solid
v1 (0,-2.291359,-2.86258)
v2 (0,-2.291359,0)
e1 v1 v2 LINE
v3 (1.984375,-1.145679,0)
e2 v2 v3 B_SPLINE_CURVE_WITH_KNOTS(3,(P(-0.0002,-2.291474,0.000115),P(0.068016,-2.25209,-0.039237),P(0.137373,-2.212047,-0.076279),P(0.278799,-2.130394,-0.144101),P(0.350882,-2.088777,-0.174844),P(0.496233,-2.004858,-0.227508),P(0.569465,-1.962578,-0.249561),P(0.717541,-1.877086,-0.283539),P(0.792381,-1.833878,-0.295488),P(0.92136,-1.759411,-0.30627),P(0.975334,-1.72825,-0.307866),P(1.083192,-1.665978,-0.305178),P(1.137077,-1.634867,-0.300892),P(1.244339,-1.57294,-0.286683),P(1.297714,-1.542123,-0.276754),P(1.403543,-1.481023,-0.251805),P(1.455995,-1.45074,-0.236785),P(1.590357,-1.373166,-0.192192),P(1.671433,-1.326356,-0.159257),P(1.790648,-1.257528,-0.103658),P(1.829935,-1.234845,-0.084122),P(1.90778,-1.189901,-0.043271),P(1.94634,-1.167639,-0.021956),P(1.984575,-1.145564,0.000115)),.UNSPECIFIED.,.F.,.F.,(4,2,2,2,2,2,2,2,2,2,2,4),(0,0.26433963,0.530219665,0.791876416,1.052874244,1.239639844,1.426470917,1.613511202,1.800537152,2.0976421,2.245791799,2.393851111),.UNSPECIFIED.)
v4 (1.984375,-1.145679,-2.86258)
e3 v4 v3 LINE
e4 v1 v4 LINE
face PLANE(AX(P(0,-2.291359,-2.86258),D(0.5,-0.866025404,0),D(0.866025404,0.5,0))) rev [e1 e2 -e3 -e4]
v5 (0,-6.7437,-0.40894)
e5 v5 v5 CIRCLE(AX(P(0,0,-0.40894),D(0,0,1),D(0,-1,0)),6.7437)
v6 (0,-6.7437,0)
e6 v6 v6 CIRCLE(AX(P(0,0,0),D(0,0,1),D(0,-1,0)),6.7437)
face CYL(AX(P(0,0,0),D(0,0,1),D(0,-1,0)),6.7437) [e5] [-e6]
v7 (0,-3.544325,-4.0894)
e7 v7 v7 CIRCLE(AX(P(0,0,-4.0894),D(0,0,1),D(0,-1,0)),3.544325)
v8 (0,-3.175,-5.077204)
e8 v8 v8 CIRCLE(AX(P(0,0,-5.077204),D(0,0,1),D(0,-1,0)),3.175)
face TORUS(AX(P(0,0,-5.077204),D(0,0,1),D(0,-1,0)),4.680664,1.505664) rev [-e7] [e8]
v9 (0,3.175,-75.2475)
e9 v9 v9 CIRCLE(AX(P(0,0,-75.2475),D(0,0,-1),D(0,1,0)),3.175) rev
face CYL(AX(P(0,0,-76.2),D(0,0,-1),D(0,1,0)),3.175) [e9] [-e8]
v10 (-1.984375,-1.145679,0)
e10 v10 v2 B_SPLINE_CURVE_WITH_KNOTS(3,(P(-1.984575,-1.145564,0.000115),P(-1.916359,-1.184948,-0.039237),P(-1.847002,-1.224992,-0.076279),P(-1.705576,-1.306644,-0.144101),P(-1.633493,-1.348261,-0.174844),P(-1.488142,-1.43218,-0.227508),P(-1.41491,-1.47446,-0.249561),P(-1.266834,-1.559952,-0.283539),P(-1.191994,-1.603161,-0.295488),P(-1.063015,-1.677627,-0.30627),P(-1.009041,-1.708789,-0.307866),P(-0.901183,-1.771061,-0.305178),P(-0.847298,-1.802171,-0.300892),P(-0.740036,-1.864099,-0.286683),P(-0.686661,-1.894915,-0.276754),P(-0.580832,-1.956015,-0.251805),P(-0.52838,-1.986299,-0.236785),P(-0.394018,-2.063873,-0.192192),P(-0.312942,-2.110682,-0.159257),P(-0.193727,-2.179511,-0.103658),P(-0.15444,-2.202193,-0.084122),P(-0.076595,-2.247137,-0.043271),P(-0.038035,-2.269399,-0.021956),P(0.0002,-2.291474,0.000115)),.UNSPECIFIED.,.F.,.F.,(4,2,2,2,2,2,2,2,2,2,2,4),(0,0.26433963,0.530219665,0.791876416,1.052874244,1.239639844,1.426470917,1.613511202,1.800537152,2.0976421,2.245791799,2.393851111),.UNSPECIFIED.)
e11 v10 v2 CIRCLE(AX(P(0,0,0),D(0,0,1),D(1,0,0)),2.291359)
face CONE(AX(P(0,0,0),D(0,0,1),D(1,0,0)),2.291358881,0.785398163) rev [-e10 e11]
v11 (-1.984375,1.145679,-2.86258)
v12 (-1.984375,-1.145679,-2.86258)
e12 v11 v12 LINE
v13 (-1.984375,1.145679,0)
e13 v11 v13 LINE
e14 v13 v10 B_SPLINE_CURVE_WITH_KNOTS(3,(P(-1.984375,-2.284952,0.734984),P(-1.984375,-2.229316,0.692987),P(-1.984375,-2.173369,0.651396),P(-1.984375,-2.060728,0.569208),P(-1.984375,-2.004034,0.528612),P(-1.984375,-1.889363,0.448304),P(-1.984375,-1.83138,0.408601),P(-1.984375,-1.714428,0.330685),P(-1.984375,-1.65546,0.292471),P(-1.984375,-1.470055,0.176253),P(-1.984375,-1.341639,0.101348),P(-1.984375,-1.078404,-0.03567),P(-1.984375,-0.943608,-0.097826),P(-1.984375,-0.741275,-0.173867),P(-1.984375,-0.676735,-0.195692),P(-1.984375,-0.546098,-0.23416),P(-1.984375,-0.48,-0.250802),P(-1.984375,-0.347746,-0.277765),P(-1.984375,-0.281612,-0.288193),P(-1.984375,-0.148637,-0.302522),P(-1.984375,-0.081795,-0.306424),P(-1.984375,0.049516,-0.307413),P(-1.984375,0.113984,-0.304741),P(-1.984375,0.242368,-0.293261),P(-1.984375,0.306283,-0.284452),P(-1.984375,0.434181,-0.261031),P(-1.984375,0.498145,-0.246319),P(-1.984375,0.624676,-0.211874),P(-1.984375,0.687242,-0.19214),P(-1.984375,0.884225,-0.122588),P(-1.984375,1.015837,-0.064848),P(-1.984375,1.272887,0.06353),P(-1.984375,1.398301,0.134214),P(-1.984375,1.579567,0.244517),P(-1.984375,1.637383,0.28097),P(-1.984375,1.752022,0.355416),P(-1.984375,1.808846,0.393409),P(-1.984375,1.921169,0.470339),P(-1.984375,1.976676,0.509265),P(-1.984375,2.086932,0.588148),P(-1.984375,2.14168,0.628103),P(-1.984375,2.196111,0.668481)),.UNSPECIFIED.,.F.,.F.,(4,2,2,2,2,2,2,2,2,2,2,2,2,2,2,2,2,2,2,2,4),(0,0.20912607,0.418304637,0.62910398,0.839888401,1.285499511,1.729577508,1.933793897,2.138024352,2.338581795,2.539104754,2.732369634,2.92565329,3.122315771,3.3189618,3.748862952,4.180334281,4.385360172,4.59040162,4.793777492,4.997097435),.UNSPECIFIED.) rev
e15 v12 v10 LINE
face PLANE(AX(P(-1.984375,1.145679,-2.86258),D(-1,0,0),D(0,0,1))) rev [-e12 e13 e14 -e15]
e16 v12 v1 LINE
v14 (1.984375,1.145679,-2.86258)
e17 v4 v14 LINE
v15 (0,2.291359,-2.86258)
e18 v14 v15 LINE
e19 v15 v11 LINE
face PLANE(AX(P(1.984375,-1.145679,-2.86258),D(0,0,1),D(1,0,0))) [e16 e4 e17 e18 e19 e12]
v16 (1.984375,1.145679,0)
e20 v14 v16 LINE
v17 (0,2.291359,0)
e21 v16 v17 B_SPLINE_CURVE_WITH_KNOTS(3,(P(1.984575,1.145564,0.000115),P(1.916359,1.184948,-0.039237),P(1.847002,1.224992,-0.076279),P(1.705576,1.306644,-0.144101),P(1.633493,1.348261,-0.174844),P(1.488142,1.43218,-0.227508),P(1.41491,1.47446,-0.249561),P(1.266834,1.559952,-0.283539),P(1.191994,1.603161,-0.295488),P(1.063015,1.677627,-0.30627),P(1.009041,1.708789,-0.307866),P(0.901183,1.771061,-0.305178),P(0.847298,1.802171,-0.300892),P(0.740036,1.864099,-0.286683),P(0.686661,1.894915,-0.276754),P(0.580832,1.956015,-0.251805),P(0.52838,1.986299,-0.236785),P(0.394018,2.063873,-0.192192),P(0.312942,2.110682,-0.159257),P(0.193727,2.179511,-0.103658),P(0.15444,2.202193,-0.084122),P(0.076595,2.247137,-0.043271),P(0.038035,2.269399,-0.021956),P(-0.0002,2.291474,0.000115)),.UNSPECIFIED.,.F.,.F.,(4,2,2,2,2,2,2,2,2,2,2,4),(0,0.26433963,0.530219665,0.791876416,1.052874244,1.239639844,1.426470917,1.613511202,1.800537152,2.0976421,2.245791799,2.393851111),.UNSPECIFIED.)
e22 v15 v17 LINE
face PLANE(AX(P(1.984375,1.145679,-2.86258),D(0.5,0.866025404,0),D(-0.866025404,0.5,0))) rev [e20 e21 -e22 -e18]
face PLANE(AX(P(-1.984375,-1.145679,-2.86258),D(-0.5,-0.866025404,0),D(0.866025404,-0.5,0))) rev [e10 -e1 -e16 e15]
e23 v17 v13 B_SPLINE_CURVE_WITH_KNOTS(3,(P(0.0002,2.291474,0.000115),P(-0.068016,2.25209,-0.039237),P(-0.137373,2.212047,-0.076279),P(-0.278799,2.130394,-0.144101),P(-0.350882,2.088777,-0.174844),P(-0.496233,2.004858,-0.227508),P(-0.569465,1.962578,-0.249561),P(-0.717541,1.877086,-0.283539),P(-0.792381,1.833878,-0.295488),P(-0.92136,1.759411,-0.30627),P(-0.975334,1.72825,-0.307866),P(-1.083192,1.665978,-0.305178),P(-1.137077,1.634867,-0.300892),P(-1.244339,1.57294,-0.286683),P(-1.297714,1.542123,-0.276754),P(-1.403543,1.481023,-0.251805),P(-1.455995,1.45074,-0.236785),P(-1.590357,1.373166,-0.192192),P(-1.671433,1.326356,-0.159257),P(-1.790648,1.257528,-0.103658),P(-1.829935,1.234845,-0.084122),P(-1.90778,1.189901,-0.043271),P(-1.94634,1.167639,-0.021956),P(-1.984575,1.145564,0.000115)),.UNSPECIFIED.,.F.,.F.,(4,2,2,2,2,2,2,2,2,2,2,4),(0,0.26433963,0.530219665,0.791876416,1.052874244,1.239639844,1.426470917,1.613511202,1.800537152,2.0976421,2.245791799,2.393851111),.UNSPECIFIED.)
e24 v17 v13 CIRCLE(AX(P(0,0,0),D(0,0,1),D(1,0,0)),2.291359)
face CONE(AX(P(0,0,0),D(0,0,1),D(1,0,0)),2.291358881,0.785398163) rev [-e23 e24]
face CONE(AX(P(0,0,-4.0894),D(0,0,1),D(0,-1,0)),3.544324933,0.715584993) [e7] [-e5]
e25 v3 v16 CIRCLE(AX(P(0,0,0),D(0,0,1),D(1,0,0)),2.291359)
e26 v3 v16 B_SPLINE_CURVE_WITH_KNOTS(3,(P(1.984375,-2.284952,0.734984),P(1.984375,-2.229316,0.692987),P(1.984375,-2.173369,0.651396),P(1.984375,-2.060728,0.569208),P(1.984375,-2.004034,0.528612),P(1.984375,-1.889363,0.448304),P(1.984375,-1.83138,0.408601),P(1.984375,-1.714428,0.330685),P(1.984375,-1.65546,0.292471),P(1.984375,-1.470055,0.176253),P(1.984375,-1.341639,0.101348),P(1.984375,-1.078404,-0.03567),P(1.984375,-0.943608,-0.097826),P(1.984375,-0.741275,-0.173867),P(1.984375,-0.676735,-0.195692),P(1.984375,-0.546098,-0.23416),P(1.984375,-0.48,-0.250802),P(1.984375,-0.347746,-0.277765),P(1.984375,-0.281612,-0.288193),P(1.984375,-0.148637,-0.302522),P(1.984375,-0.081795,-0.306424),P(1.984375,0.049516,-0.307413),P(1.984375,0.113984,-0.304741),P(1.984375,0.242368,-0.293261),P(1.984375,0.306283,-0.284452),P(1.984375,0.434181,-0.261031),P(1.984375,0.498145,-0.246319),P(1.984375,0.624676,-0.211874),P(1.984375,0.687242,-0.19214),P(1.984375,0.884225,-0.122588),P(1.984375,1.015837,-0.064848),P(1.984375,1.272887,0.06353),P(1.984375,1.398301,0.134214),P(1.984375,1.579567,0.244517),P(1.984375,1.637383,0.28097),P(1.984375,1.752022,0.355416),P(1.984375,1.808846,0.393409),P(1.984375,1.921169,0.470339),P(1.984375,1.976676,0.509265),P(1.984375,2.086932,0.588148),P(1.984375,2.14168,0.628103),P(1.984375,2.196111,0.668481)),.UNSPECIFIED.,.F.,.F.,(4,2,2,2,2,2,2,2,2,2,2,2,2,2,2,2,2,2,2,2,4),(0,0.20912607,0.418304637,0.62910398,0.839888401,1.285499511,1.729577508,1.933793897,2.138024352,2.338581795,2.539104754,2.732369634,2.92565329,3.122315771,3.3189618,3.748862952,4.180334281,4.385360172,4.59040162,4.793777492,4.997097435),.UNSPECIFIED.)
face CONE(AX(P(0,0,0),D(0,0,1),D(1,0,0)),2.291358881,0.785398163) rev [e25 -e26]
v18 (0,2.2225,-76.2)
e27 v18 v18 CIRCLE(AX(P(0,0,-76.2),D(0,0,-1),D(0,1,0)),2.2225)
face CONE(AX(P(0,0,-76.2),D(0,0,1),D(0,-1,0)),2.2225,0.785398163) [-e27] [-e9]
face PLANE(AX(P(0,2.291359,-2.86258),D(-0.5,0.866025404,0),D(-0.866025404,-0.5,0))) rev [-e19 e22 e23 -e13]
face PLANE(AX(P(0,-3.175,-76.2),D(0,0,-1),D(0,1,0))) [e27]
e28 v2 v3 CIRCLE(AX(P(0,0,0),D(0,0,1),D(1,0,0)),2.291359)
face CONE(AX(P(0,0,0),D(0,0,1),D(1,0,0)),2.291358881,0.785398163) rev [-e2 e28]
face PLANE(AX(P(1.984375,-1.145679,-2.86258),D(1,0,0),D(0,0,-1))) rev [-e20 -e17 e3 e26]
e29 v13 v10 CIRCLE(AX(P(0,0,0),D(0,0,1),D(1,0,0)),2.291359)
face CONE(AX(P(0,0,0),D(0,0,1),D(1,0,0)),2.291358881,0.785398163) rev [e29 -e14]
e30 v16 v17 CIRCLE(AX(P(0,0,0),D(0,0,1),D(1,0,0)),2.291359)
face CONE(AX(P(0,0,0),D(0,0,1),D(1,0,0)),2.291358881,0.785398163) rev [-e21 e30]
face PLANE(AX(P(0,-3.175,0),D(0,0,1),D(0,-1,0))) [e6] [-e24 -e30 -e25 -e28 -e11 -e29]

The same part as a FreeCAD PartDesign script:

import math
import FreeCAD as App
import Part
import Sketcher

V = App.Vector
Q = App.Units.Quantity


def edges_at(feature, points):
    """Names of the edges that pass closest to the given points."""
    edges = feature.Shape.Edges
    near = lambda p: min(range(len(edges)), key=lambda i: edges[i].distToShape(Part.Vertex(*p))[0])
    return sorted({f"Edge{near(p) + 1}" for p in points})

doc = App.newDocument("Part")
body = doc.addObject("PartDesign::Body", "Body")

# Sketch on YZ plane
sketch1 = body.newObject("Sketcher::SketchObject", "Sketch")
sketch1.AttachmentSupport = (doc.getObject("YZ_Plane"), [""])
sketch1.MapMode = "FlatFace"
sketch1.addGeometry(Part.LineSegment(V(3.175, 0, 0), V(0, 0, 0)), False)
sketch1.addGeometry(Part.LineSegment(V(0, 0, 0), V(0, -76.2, 0)), False)
sketch1.addGeometry(Part.LineSegment(V(0, -76.2, 0), V(3.175, -76.2, 0)), False)
sketch1.addGeometry(Part.LineSegment(V(3.175, -76.2, 0), V(3.175, 0, 0)), False)
sketch1.addConstraint(Sketcher.Constraint("Coincident", 0, 2, 1, 1))
sketch1.addConstraint(Sketcher.Constraint("Coincident", 1, 2, 2, 1))
sketch1.addConstraint(Sketcher.Constraint("Coincident", 2, 2, 3, 1))
sketch1.addConstraint(Sketcher.Constraint("Coincident", 3, 2, 0, 1))
sketch1.addConstraint(Sketcher.Constraint("Horizontal", 0))
sketch1.addConstraint(Sketcher.Constraint("Vertical", 1))
sketch1.addConstraint(Sketcher.Constraint("Horizontal", 2))
sketch1.addConstraint(Sketcher.Constraint("Vertical", 3))
sketch1.addConstraint(Sketcher.Constraint("Coincident", 0, 2, -1, 1))
sketch1.addConstraint(Sketcher.Constraint("DistanceY", 1, 2, 1, 1, Q("3 in")))
sketch1.addConstraint(Sketcher.Constraint("DistanceX", 0, 2, 0, 1, Q("0.125 in")))
revolution = body.newObject("PartDesign::Revolution", "Revolution")
revolution.Profile = sketch1
revolution.ReferenceAxis = (sketch1, ["V_Axis"])
revolution.Angle = 360
doc.recompute()

chamfer = body.newObject("PartDesign::Chamfer", "Chamfer")
chamfer.Base = (revolution, edges_at(revolution, [(0, -3.175, -76.2)]))
chamfer.Size = Q("0.0375 in")

# Sketch on YZ plane
sketch2 = body.newObject("Sketcher::SketchObject", "Sketch001")
sketch2.AttachmentSupport = (doc.getObject("YZ_Plane"), [""])
sketch2.MapMode = "FlatFace"
sketch2.addGeometry(Part.LineSegment(V(6.7437, -0.40894, 0), V(6.7437, 0, 0)), False)
sketch2.addGeometry(Part.LineSegment(V(6.7437, 0, 0), V(0, 0, 0)), False)
sketch2.addGeometry(Part.LineSegment(V(0, 0, 0), V(0, -5.077204, 0)), False)
sketch2.addGeometry(Part.LineSegment(V(0, -5.077204, 0), V(3.175, -5.077204, 0)), False)
sketch2.addGeometry(Part.ArcOfCircle(Part.Circle(V(4.680664, -5.077204, 0), V(0, 0, 1), 1.505664), math.radians(139), math.radians(180)), False)
sketch2.addGeometry(Part.LineSegment(V(3.544325, -4.0894, 0), V(6.7437, -0.40894, 0)), False)
sketch2.addConstraint(Sketcher.Constraint("Coincident", 0, 2, 1, 1))
sketch2.addConstraint(Sketcher.Constraint("Coincident", 1, 2, 2, 1))
sketch2.addConstraint(Sketcher.Constraint("Coincident", 2, 2, 3, 1))
sketch2.addConstraint(Sketcher.Constraint("Coincident", 3, 2, 4, 2))
sketch2.addConstraint(Sketcher.Constraint("Tangent", 4, 1, 5, 1))
sketch2.addConstraint(Sketcher.Constraint("Coincident", 5, 2, 0, 1))
sketch2.addConstraint(Sketcher.Constraint("Vertical", 0))
sketch2.addConstraint(Sketcher.Constraint("Horizontal", 1))
sketch2.addConstraint(Sketcher.Constraint("Vertical", 2))
sketch2.addConstraint(Sketcher.Constraint("Horizontal", 3))
sketch2.addConstraint(Sketcher.Constraint("Coincident", 1, 2, -1, 1))
sketch2.addConstraint(Sketcher.Constraint("Horizontal", 4, 3, 2, 2))
sketch2.addConstraint(Sketcher.Constraint("Angle", 5, Q("49 deg")))
sketch2.addConstraint(Sketcher.Constraint("DistanceX", 3, 1, 3, 2, Q("0.125 in")))
sketch2.addConstraint(Sketcher.Constraint("DistanceX", 1, 2, 1, 1, Q("0.2655 in")))
sketch2.addConstraint(Sketcher.Constraint("DistanceY", 0, 1, 0, 2, Q("0.0161 in")))
sketch2.addConstraint(Sketcher.Constraint("DistanceY", 4, 1, -1, 1, Q("0.161 in")))
revolution2 = body.newObject("PartDesign::Revolution", "Revolution001")
revolution2.Profile = sketch2
revolution2.ReferenceAxis = (sketch2, ["V_Axis"])
revolution2.Angle = 360

# Sketch on YZ plane
sketch3 = body.newObject("Sketcher::SketchObject", "Sketch002")
sketch3.AttachmentSupport = (doc.getObject("YZ_Plane"), [""])
sketch3.MapMode = "FlatFace"
sketch3.addGeometry(Part.LineSegment(V(0, -5.077204, 0), V(-3.175, -5.077204, 0)), False)
sketch3.addGeometry(Part.LineSegment(V(-3.175, -5.077204, 0), V(0, -8.252204, 0)), False)
sketch3.addGeometry(Part.LineSegment(V(0, -8.252204, 0), V(0, -5.077204, 0)), False)
sketch3.addConstraint(Sketcher.Constraint("Coincident", 0, 2, 1, 1))
sketch3.addConstraint(Sketcher.Constraint("Coincident", 1, 2, 2, 1))
sketch3.addConstraint(Sketcher.Constraint("Coincident", 2, 2, 0, 1))
sketch3.addConstraint(Sketcher.Constraint("Horizontal", 0))
sketch3.addConstraint(Sketcher.Constraint("Vertical", 2))
sketch3.addConstraint(Sketcher.Constraint("PointOnObject", 1, 2, -2))
sketch3.addConstraint(Sketcher.Constraint("Equal", 0, 2))
sketch3.addConstraint(Sketcher.Constraint("DistanceX", 0, 2, 0, 1, Q("0.125 in")))
sketch3.addConstraint(Sketcher.Constraint("DistanceY", 0, 2, -1, 1, Q("5.077204 mm")))
revolution3 = body.newObject("PartDesign::Revolution", "Revolution002")
revolution3.Profile = sketch3
revolution3.ReferenceAxis = (sketch3, ["V_Axis"])
revolution3.Angle = 360

# Sketch on XY plane
sketch4 = body.newObject("Sketcher::SketchObject", "Sketch003")
sketch4.AttachmentSupport = (doc.getObject("XY_Plane"), [""])
sketch4.MapMode = "FlatFace"
sketch4.addGeometry(Part.LineSegment(V(1.984375, -1.145679, 0), V(1.984375, 1.145679, 0)), False)
sketch4.addGeometry(Part.LineSegment(V(1.984375, 1.145679, 0), V(0, 2.291359, 0)), False)
sketch4.addGeometry(Part.LineSegment(V(0, 2.291359, 0), V(-1.984375, 1.145679, 0)), False)
sketch4.addGeometry(Part.LineSegment(V(-1.984375, 1.145679, 0), V(-1.984375, -1.145679, 0)), False)
sketch4.addGeometry(Part.LineSegment(V(-1.984375, -1.145679, 0), V(0, -2.291359, 0)), False)
sketch4.addGeometry(Part.LineSegment(V(0, -2.291359, 0), V(1.984375, -1.145679, 0)), False)
sketch4.addConstraint(Sketcher.Constraint("Coincident", 0, 2, 1, 1))
sketch4.addConstraint(Sketcher.Constraint("Coincident", 1, 2, 2, 1))
sketch4.addConstraint(Sketcher.Constraint("Coincident", 2, 2, 3, 1))
sketch4.addConstraint(Sketcher.Constraint("Coincident", 3, 2, 4, 1))
sketch4.addConstraint(Sketcher.Constraint("Coincident", 4, 2, 5, 1))
sketch4.addConstraint(Sketcher.Constraint("Coincident", 5, 2, 0, 1))
sketch4.addConstraint(Sketcher.Constraint("Vertical", 0))
sketch4.addConstraint(Sketcher.Constraint("Vertical", 3))
sketch4.addConstraint(Sketcher.Constraint("Symmetric", 0, 2, 3, 2, -1, 1))
sketch4.addConstraint(Sketcher.Constraint("Symmetric", 1, 2, 4, 2, -1, 1))
sketch4.addConstraint(Sketcher.Constraint("PointOnObject", 1, 2, -2))
sketch4.addConstraint(Sketcher.Constraint("Parallel", 2, 5))
sketch4.addConstraint(Sketcher.Constraint("Horizontal", 0, 2, 2, 2))
sketch4.addConstraint(Sketcher.Constraint("Angle", 1, Q("150 deg")))
sketch4.addConstraint(Sketcher.Constraint("DistanceX", -1, 1, 0, 2, Q("0.078125 in")))
sketch4.addConstraint(Sketcher.Constraint("DistanceY", 0, 1, 0, 2, Q("2.291359 mm")))
pocket1 = body.newObject("PartDesign::Pocket", "Pocket")
pocket1.Profile = sketch4
pocket1.Length = Q("0.1127 in")

# Sketch on YZ plane
sketch5 = body.newObject("Sketcher::SketchObject", "Sketch004")
sketch5.AttachmentSupport = (doc.getObject("YZ_Plane"), [""])
sketch5.MapMode = "FlatFace"
sketch5.addGeometry(Part.LineSegment(V(0, 0, 0), V(-2.291359, 0, 0)), False)
sketch5.addGeometry(Part.LineSegment(V(-2.291359, 0, 0), V(0, -2.291359, 0)), False)
sketch5.addGeometry(Part.LineSegment(V(0, -2.291359, 0), V(0, 0, 0)), False)
sketch5.addConstraint(Sketcher.Constraint("Coincident", 0, 2, 1, 1))
sketch5.addConstraint(Sketcher.Constraint("Coincident", 1, 2, 2, 1))
sketch5.addConstraint(Sketcher.Constraint("Coincident", 2, 2, 0, 1))
sketch5.addConstraint(Sketcher.Constraint("Horizontal", 0))
sketch5.addConstraint(Sketcher.Constraint("Vertical", 2))
sketch5.addConstraint(Sketcher.Constraint("Coincident", 2, 2, -1, 1))
sketch5.addConstraint(Sketcher.Constraint("Equal", 0, 2))
sketch5.addConstraint(Sketcher.Constraint("DistanceX", 0, 2, 0, 1, Q("2.291359 mm")))
groove = body.newObject("PartDesign::Groove", "Groove")
groove.Profile = sketch5
groove.ReferenceAxis = (sketch5, ["V_Axis"])
groove.Angle = 360

# Sketch on XY plane
sketch6 = body.newObject("Sketcher::SketchObject", "Sketch005")
sketch6.AttachmentSupport = (doc.getObject("XY_Plane"), [""])
sketch6.MapMode = "FlatFace"
sketch6.AttachmentOffset = App.Placement(V(0, 0, -2 * 25.4), App.Rotation())
sketch6.addGeometry(Part.Circle(V(0, 0, 0), V(0, 0, 1), 3.175), False)
sketch6.addConstraint(Sketcher.Constraint("Coincident", 0, 3, -1, 1))
sketch6.addConstraint(Sketcher.Constraint("Diameter", 0, Q("0.25 in")))
pad1 = body.newObject("PartDesign::Pad", "Pad")
pad1.Profile = sketch6
pad1.Length = 45.722796

doc.recompute()
